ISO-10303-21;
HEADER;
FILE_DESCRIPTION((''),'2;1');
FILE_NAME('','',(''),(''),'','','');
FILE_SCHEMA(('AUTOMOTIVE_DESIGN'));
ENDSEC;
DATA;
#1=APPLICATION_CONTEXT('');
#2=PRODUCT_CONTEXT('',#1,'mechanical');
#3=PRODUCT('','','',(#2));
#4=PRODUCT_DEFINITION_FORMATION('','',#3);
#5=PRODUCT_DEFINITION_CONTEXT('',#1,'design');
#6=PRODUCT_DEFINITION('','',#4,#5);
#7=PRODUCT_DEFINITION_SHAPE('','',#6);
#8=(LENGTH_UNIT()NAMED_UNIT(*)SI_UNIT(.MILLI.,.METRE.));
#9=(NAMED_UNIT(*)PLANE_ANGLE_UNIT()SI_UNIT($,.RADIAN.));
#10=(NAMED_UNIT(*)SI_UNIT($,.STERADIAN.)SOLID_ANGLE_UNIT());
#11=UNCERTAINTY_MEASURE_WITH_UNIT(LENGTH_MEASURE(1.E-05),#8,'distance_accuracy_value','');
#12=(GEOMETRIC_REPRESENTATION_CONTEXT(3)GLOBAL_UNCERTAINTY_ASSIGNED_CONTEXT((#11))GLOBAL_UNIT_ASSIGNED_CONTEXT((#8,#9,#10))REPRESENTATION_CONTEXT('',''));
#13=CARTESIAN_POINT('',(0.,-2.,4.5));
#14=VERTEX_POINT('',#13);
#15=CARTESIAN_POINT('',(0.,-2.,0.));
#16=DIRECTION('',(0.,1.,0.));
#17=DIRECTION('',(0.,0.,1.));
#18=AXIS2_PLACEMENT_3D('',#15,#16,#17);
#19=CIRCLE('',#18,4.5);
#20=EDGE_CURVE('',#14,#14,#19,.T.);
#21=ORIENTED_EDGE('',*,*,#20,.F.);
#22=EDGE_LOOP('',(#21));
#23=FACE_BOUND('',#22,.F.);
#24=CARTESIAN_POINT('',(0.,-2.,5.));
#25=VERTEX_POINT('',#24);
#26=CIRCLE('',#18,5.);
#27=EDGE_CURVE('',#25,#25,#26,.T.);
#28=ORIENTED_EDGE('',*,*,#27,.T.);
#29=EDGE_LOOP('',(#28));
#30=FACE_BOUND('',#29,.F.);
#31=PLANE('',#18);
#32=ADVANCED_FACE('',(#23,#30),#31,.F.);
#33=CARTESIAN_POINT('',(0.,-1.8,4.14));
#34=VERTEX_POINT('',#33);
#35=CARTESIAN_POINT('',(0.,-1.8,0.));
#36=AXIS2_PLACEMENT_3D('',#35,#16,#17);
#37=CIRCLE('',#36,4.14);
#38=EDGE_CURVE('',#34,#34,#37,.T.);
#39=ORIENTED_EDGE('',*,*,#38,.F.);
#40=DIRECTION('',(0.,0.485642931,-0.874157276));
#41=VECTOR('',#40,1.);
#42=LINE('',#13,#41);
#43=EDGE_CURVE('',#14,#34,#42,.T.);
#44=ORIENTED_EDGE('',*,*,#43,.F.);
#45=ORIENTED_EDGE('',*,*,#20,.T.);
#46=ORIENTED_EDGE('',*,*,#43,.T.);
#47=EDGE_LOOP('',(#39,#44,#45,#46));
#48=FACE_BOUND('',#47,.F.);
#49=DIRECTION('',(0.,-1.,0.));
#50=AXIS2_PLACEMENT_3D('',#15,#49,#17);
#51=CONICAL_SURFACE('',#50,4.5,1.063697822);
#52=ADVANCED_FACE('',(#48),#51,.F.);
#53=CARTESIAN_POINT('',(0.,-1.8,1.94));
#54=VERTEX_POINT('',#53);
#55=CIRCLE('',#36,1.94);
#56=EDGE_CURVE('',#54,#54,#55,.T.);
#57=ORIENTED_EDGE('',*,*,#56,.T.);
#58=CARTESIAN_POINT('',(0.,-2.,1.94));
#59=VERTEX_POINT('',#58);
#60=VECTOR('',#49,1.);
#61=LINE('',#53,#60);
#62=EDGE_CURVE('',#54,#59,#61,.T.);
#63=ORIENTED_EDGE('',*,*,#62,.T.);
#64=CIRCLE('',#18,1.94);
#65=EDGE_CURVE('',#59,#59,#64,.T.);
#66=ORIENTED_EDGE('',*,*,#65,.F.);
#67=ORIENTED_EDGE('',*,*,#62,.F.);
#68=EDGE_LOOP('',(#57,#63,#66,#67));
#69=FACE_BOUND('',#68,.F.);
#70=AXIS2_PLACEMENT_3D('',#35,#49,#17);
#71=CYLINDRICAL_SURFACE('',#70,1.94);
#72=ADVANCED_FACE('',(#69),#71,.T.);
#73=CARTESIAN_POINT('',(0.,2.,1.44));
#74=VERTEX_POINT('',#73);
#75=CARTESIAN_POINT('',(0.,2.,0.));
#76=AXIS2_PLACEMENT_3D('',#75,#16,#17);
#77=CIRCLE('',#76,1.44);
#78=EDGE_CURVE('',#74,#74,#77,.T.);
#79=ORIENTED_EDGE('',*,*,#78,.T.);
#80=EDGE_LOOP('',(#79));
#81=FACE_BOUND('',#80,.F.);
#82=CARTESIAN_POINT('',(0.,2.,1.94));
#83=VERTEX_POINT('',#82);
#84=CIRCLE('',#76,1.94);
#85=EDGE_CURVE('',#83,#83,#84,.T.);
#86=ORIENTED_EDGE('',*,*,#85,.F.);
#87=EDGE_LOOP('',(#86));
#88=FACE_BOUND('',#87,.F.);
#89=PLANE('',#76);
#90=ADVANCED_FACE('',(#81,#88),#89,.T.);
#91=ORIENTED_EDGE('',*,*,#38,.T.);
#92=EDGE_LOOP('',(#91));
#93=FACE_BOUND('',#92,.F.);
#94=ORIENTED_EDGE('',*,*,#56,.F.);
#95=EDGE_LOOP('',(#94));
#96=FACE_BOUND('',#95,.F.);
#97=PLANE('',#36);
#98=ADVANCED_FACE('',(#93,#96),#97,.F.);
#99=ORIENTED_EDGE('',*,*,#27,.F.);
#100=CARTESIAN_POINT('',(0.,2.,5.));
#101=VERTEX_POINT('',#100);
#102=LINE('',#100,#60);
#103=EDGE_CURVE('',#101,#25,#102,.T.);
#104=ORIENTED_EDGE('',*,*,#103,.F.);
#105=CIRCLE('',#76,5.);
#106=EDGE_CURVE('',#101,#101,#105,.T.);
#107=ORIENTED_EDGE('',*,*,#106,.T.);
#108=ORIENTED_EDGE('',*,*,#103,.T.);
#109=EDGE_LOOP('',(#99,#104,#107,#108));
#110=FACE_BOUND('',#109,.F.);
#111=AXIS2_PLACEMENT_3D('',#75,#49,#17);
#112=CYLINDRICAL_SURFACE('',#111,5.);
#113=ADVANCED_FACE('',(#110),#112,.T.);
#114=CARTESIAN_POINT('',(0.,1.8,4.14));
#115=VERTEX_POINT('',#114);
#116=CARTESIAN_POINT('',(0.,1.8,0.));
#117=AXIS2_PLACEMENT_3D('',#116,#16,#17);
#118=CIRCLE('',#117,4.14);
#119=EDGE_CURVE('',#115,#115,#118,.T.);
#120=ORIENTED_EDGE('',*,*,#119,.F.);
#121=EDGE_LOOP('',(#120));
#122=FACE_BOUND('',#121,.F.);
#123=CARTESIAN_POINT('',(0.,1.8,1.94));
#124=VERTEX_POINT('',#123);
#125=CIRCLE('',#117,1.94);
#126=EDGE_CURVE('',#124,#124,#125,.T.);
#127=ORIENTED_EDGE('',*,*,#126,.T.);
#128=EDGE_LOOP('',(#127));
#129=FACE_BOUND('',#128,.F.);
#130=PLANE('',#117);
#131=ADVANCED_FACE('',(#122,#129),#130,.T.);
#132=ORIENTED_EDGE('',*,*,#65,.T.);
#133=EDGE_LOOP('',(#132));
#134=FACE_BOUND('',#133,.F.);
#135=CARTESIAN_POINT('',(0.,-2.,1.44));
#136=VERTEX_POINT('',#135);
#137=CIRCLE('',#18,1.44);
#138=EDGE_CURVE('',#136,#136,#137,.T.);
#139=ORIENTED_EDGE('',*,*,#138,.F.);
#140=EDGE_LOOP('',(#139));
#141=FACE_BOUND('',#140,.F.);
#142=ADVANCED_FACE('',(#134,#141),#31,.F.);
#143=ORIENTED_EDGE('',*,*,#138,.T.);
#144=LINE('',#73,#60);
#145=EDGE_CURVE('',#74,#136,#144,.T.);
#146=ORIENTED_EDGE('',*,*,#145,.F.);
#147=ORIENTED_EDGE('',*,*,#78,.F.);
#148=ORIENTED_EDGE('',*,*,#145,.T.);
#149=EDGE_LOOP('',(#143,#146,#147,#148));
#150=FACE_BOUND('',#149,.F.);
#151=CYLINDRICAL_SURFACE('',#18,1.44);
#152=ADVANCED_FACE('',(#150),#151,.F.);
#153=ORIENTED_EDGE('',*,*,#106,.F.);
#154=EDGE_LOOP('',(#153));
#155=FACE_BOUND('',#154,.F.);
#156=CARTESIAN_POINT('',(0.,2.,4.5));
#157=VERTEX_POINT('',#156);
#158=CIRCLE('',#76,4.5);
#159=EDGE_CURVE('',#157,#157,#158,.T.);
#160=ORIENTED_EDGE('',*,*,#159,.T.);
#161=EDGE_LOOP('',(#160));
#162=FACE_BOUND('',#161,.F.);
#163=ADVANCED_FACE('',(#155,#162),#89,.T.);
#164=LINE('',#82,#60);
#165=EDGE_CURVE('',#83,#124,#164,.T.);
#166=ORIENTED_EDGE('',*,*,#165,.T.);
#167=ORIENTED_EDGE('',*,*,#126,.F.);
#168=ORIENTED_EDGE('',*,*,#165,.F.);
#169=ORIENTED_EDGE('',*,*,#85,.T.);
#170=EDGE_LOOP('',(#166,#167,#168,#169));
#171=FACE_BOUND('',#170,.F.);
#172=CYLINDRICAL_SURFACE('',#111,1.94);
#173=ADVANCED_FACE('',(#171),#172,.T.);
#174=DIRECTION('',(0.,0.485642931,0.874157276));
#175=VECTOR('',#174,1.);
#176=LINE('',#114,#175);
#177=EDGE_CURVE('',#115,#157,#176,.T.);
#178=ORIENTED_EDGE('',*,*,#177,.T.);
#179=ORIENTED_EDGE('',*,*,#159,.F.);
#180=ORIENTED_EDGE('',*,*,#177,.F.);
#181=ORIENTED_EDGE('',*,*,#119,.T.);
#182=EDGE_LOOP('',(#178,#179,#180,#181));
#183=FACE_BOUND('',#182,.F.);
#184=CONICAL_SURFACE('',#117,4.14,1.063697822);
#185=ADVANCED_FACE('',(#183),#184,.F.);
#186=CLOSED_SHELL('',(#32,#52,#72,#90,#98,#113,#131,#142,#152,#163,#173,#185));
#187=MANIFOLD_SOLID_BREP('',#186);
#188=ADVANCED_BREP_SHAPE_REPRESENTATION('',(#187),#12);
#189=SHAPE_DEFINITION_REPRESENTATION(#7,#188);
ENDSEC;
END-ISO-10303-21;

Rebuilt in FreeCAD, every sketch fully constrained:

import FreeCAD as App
import Part
import Sketcher
Q = App.Units.Quantity

doc = App.newDocument("Part")
body = doc.addObject("PartDesign::Body", "Body")

# Sketch on YZ plane
sketch1 = body.newObject("Sketcher::SketchObject", "Sketch")
sketch1.AttachmentSupport = (doc.getObject("YZ_Plane"), [""])
sketch1.MapMode = "FlatFace"
sketch1.addGeometry([
    Part.LineSegment(App.Vector(-2, 1.44, 0), App.Vector(2, 1.44, 0)),  # 0
    Part.LineSegment(App.Vector(2, 1.44, 0), App.Vector(2, 1.94, 0)),  # 1
    Part.LineSegment(App.Vector(2, 1.94, 0), App.Vector(1.8, 1.94, 0)),  # 2
    Part.LineSegment(App.Vector(1.8, 1.94, 0), App.Vector(1.8, 4.14, 0)),  # 3
    Part.LineSegment(App.Vector(1.8, 4.14, 0), App.Vector(2, 4.5, 0)),  # 4
    Part.LineSegment(App.Vector(2, 4.5, 0), App.Vector(2, 5, 0)),  # 5
    Part.LineSegment(App.Vector(2, 5, 0), App.Vector(-2, 5, 0)),  # 6
    Part.LineSegment(App.Vector(-2, 5, 0), App.Vector(-2, 4.5, 0)),  # 7
    Part.LineSegment(App.Vector(-2, 4.5, 0), App.Vector(-1.8, 4.14, 0)),  # 8
    Part.LineSegment(App.Vector(-1.8, 4.14, 0), App.Vector(-1.8, 1.94, 0)),  # 9
    Part.LineSegment(App.Vector(-1.8, 1.94, 0), App.Vector(-2, 1.94, 0)),  # 10
    Part.LineSegment(App.Vector(-2, 1.94, 0), App.Vector(-2, 1.44, 0)),  # 11
], False)
sketch1.addConstraint([
    Sketcher.Constraint("Coincident", 0, 2, 1, 1),
    Sketcher.Constraint("Coincident", 1, 2, 2, 1),
    Sketcher.Constraint("Coincident", 2, 2, 3, 1),
    Sketcher.Constraint("Coincident", 3, 2, 4, 1),
    Sketcher.Constraint("Coincident", 4, 2, 5, 1),
    Sketcher.Constraint("Coincident", 5, 2, 6, 1),
    Sketcher.Constraint("Coincident", 6, 2, 7, 1),
    Sketcher.Constraint("Coincident", 7, 2, 8, 1),
    Sketcher.Constraint("Coincident", 8, 2, 9, 1),
    Sketcher.Constraint("Coincident", 9, 2, 10, 1),
    Sketcher.Constraint("Coincident", 10, 2, 11, 1),
    Sketcher.Constraint("Coincident", 11, 2, 0, 1),
    Sketcher.Constraint("Horizontal", 0),
    Sketcher.Constraint("Vertical", 1),
    Sketcher.Constraint("Horizontal", 2),
    Sketcher.Constraint("Vertical", 3),
    Sketcher.Constraint("Vertical", 5),
    Sketcher.Constraint("Horizontal", 6),
    Sketcher.Constraint("Vertical", 7),
    Sketcher.Constraint("Vertical", 9),
    Sketcher.Constraint("Horizontal", 10),
    Sketcher.Constraint("Vertical", 11),
    Sketcher.Constraint("Symmetric", 4, 2, 7, 2, -2),
    Sketcher.Constraint("Symmetric", 3, 2, 8, 2, -2),
    Sketcher.Constraint("Symmetric", 1, 2, 10, 2, -2),
    Sketcher.Constraint("Vertical", 1, 2, 4, 2),
    Sketcher.Constraint("Equal", 1, 5),
    Sketcher.Constraint("DistanceX", 0, 1, 0, 2, Q("4 mm")),
    Sketcher.Constraint("DistanceX", 2, 2, 2, 1, Q("0.2 mm")),
    Sketcher.Constraint("DistanceY", 1, 1, 1, 2, Q("0.5 mm")),
    Sketcher.Constraint("DistanceY", 3, 1, 3, 2, Q("2.2 mm")),
    Sketcher.Constraint("DistanceY", -1, 1, 5, 2, Q("5 mm")),
    Sketcher.Constraint("DistanceY", -1, 1, 0, 2, Q("1.44 mm")),
])
revolution = body.newObject("PartDesign::Revolution", "Revolution")
revolution.Profile = sketch1
revolution.ReferenceAxis = (sketch1, ["H_Axis"])
revolution.Angle = 360

doc.recompute()
